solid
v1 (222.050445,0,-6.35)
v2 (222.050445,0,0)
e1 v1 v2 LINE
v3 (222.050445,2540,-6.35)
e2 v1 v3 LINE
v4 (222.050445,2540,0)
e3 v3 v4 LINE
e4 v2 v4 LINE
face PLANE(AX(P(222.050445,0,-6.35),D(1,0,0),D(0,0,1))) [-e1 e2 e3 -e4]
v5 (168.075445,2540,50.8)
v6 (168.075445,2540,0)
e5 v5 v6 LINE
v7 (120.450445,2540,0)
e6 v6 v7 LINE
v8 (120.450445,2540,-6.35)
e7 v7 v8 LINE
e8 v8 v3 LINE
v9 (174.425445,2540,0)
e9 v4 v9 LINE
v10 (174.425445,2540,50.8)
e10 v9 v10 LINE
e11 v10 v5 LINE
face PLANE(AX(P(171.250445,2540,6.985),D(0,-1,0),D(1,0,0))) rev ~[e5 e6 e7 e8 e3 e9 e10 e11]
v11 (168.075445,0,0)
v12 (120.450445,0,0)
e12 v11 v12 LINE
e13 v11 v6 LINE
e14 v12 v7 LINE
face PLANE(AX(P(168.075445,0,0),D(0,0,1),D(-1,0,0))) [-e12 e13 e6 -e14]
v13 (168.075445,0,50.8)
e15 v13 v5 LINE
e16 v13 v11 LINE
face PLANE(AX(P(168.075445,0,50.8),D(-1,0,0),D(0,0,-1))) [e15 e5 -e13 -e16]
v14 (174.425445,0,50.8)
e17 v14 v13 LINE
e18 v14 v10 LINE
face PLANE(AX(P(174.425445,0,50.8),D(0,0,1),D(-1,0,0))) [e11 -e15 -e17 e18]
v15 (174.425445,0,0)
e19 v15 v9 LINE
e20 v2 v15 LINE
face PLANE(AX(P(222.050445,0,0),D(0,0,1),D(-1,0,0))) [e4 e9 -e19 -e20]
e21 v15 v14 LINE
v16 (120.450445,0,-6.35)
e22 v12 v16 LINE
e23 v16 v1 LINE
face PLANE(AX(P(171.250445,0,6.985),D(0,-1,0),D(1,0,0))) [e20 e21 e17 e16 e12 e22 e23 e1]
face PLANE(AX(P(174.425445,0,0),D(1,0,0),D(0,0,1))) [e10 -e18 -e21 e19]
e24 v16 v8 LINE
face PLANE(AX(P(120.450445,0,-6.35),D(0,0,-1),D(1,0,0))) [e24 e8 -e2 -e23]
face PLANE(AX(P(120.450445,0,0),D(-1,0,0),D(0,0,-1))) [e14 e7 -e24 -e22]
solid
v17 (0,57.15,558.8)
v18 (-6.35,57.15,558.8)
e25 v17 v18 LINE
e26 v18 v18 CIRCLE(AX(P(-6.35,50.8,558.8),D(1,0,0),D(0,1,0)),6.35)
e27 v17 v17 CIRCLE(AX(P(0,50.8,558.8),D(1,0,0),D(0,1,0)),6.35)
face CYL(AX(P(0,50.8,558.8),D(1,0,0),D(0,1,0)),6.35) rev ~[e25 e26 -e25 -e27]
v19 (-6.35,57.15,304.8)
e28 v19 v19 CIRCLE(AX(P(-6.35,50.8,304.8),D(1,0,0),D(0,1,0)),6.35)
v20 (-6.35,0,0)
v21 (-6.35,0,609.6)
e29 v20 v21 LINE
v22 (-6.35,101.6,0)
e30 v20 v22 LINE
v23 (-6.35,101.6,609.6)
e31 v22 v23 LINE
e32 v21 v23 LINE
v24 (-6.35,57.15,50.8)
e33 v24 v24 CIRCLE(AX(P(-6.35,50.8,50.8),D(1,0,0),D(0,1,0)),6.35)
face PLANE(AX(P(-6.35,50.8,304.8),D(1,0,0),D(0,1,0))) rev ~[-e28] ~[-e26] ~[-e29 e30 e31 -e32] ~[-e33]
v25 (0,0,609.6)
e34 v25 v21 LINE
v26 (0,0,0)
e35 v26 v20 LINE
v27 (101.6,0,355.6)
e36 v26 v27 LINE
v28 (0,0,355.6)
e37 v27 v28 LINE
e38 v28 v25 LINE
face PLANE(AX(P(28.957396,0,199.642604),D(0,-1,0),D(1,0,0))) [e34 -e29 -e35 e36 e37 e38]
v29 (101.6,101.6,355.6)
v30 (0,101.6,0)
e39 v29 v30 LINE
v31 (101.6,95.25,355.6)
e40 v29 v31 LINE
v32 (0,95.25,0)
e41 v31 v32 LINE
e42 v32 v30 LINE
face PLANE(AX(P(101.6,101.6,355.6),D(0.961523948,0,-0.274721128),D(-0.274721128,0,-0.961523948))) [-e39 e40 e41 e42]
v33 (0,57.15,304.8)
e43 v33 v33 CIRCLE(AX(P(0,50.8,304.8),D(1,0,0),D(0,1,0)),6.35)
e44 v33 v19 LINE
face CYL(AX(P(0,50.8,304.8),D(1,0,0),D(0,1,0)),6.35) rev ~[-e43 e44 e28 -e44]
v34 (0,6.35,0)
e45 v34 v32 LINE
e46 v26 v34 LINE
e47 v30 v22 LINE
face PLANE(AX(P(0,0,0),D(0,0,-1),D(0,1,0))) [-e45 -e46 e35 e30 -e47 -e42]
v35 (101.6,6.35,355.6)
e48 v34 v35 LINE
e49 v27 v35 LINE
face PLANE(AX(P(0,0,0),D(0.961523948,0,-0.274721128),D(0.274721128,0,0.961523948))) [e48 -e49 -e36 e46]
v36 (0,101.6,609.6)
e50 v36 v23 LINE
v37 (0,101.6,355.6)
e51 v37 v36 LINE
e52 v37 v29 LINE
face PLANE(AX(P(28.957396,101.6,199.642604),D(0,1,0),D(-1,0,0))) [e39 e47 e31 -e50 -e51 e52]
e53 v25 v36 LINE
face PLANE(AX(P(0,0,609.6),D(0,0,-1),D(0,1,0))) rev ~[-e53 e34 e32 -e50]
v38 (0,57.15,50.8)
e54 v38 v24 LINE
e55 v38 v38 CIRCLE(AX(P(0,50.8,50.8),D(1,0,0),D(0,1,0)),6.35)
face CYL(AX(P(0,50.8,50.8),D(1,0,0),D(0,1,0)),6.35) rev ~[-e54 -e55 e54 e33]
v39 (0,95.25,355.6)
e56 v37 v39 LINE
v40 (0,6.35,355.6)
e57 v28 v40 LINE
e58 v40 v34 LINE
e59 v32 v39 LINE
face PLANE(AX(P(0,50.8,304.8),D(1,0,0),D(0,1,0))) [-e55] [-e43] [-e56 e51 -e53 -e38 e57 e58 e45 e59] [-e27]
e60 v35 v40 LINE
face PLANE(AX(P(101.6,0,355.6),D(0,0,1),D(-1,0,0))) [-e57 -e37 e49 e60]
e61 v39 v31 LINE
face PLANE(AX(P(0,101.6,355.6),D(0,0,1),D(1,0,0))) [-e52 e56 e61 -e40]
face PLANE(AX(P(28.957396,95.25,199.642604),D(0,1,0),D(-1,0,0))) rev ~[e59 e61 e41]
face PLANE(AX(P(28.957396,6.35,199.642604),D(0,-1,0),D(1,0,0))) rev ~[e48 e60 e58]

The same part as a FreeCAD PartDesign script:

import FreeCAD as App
import Part
import Sketcher
Q = App.Units.Quantity

doc = App.newDocument("Part")
body = doc.addObject("PartDesign::Body", "Body")

# Sketch on YZ plane
sketch1 = doc.addObject("Sketcher::SketchObject", "Sketch")
body.addObject(sketch1)
sketch1.AttachmentSupport = (doc.YZ_Plane, [""])
sketch1.MapMode = "FlatFace"
sketch1.addGeometry([
    Part.LineSegment(App.Vector(0, 609.6, 0), App.Vector(0, 0, 0)),  # 0
    Part.LineSegment(App.Vector(0, 0, 0), App.Vector(101.6, 0, 0)),  # 1
    Part.LineSegment(App.Vector(101.6, 0, 0), App.Vector(101.6, 609.6, 0)),  # 2
    Part.LineSegment(App.Vector(101.6, 609.6, 0), App.Vector(0, 609.6, 0)),  # 3
    Part.Circle(App.Vector(50.8, 50.8, 0), App.Vector(0, 0, 1), 6.35),  # 4
    Part.Circle(App.Vector(50.8, 304.8, 0), App.Vector(0, 0, 1), 6.35),  # 5
    Part.Circle(App.Vector(50.8, 558.8, 0), App.Vector(0, 0, 1), 6.35),  # 6
], False)
sketch1.addConstraint([
    Sketcher.Constraint("Coincident", 0, 2, 1, 1),
    Sketcher.Constraint("Coincident", 1, 2, 2, 1),
    Sketcher.Constraint("Coincident", 2, 2, 3, 1),
    Sketcher.Constraint("Coincident", 3, 2, 0, 1),
    Sketcher.Constraint("Vertical", 0),
    Sketcher.Constraint("Horizontal", 1),
    Sketcher.Constraint("Vertical", 2),
    Sketcher.Constraint("Horizontal", 3),
    Sketcher.Constraint("Coincident", 0, 2, -1, 1),
    Sketcher.Constraint("Equal", 4, 5),
    Sketcher.Constraint("Equal", 5, 6),
    Sketcher.Constraint("Vertical", 4, 3, 5, 3),
    Sketcher.Constraint("Vertical", 5, 3, 6, 3),
    Sketcher.Constraint("Diameter", 4, Q("0.5 in")),
    Sketcher.Constraint("DistanceX", 1, 1, 1, 2, Q("4 in")),
    Sketcher.Constraint("DistanceY", 0, 2, 0, 1, Q("24 in")),
    Sketcher.Constraint("DistanceX", -1, 1, 4, 3, Q("2 in")),
    Sketcher.Constraint("DistanceY", -1, 1, 4, 3, Q("2 in")),
    Sketcher.Constraint("DistanceY", -1, 1, 5, 3, Q("12 in")),
    Sketcher.Constraint("DistanceY", -1, 1, 6, 3, Q("22 in")),
])
pad1 = doc.addObject("PartDesign::Pad", "Pad")
body.addObject(pad1)
pad1.Profile = sketch1
pad1.Length = Q("0.25 in")
pad1.Reversed = True

# Sketch on XZ plane
sketch2 = doc.addObject("Sketcher::SketchObject", "Sketch001")
body.addObject(sketch2)
sketch2.AttachmentSupport = (doc.XZ_Plane, [""])
sketch2.MapMode = "FlatFace"
sketch2.addGeometry([
    Part.LineSegment(App.Vector(0, 355.6, 0), App.Vector(0, 0, 0)),
    Part.LineSegment(App.Vector(0, 0, 0), App.Vector(101.6, 355.6, 0)),
    Part.LineSegment(App.Vector(101.6, 355.6, 0), App.Vector(0, 355.6, 0)),
], False)
sketch2.addConstraint([
    Sketcher.Constraint("Coincident", 0, 2, 1, 1),
    Sketcher.Constraint("Coincident", 1, 2, 2, 1),
    Sketcher.Constraint("Coincident", 2, 2, 0, 1),
    Sketcher.Constraint("Vertical", 0),
    Sketcher.Constraint("Horizontal", 2),
    Sketcher.Constraint("Coincident", 0, 2, -1, 1),
    Sketcher.Constraint("DistanceX", 2, 2, 2, 1, Q("4 in")),
    Sketcher.Constraint("DistanceY", 0, 2, 0, 1, Q("14 in")),
])
pad2 = doc.addObject("PartDesign::Pad", "Pad001")
body.addObject(pad2)
pad2.Profile = sketch2
pad2.Length = Q("0.25 in")
pad2.Reversed = True

# Sketch on XZ plane
sketch3 = doc.addObject("Sketcher::SketchObject", "Sketch002")
body.addObject(sketch3)
sketch3.AttachmentSupport = (doc.XZ_Plane, [""])
sketch3.MapMode = "FlatFace"
sketch3.AttachmentOffset = App.Placement(App.Vector(0, 0, -4 * 25.4), App.Rotation())
sketch3.addGeometry([
    Part.LineSegment(App.Vector(101.6, 355.6, 0), App.Vector(0, 0, 0)),
    Part.LineSegment(App.Vector(0, 0, 0), App.Vector(0, 355.6, 0)),
    Part.LineSegment(App.Vector(0, 355.6, 0), App.Vector(101.6, 355.6, 0)),
], False)
sketch3.addConstraint([
    Sketcher.Constraint("Coincident", 0, 2, 1, 1),
    Sketcher.Constraint("Coincident", 1, 2, 2, 1),
    Sketcher.Constraint("Coincident", 2, 2, 0, 1),
    Sketcher.Constraint("Vertical", 1),
    Sketcher.Constraint("Horizontal", 2),
    Sketcher.Constraint("Coincident", 0, 2, -1, 1),
    Sketcher.Constraint("DistanceX", 2, 1, 2, 2, Q("4 in")),
    Sketcher.Constraint("DistanceY", 1, 1, 1, 2, Q("14 in")),
])
pad3 = doc.addObject("PartDesign::Pad", "Pad002")
body.addObject(pad3)
pad3.Profile = sketch3
pad3.Length = Q("0.25 in")
body2 = doc.addObject("PartDesign::Body", "Body001")

# Sketch on XZ plane
sketch4 = doc.addObject("Sketcher::SketchObject", "Sketch003")
body2.addObject(sketch4)
sketch4.AttachmentSupport = (doc.getObject("XZ_Plane001"), [""])
sketch4.MapMode = "FlatFace"
sketch4.addGeometry([
    Part.LineSegment(App.Vector(168.075445, 50.8, 0), App.Vector(168.075445, 0, 0)),  # 0
    Part.LineSegment(App.Vector(168.075445, 0, 0), App.Vector(120.450445, 0, 0)),  # 1
    Part.LineSegment(App.Vector(120.450445, 0, 0), App.Vector(120.450445, -6.35, 0)),  # 2
    Part.LineSegment(App.Vector(120.450445, -6.35, 0), App.Vector(222.050445, -6.35, 0)),  # 3
    Part.LineSegment(App.Vector(222.050445, -6.35, 0), App.Vector(222.050445, 0, 0)),  # 4
    Part.LineSegment(App.Vector(222.050445, 0, 0), App.Vector(174.425445, 0, 0)),  # 5
    Part.LineSegment(App.Vector(174.425445, 0, 0), App.Vector(174.425445, 50.8, 0)),  # 6
    Part.LineSegment(App.Vector(174.425445, 50.8, 0), App.Vector(168.075445, 50.8, 0)),  # 7
], False)
sketch4.addConstraint([
    Sketcher.Constraint("Coincident", 0, 2, 1, 1),
    Sketcher.Constraint("Coincident", 1, 2, 2, 1),
    Sketcher.Constraint("Coincident", 2, 2, 3, 1),
    Sketcher.Constraint("Coincident", 3, 2, 4, 1),
    Sketcher.Constraint("Coincident", 4, 2, 5, 1),
    Sketcher.Constraint("Coincident", 5, 2, 6, 1),
    Sketcher.Constraint("Coincident", 6, 2, 7, 1),
    Sketcher.Constraint("Coincident", 7, 2, 0, 1),
    Sketcher.Constraint("Vertical", 0),
    Sketcher.Constraint("Horizontal", 1),
    Sketcher.Constraint("Vertical", 2),
    Sketcher.Constraint("Horizontal", 3),
    Sketcher.Constraint("Vertical", 4),
    Sketcher.Constraint("Horizontal", 5),
    Sketcher.Constraint("Vertical", 6),
    Sketcher.Constraint("Horizontal", 7),
    Sketcher.Constraint("PointOnObject", 0, 2, -1),
    Sketcher.Constraint("PointOnObject", 4, 2, -1),
    Sketcher.Constraint("Equal", 1, 5),
    Sketcher.Constraint("Equal", 7, 2),
    Sketcher.Constraint("DistanceX", 3, 1, 3, 2, Q("4 in")),
    Sketcher.Constraint("DistanceY", 0, 2, 0, 1, Q("2 in")),
    Sketcher.Constraint("DistanceX", 7, 2, 7, 1, Q("0.25 in")),
    Sketcher.Constraint("DistanceX", -1, 1, 0, 2, Q("168.075445 mm")),
])
pad4 = doc.addObject("PartDesign::Pad", "Pad003")
body2.addObject(pad4)
pad4.Profile = sketch4
pad4.Length = Q("100 in")
pad4.Reversed = True

doc.recompute()
